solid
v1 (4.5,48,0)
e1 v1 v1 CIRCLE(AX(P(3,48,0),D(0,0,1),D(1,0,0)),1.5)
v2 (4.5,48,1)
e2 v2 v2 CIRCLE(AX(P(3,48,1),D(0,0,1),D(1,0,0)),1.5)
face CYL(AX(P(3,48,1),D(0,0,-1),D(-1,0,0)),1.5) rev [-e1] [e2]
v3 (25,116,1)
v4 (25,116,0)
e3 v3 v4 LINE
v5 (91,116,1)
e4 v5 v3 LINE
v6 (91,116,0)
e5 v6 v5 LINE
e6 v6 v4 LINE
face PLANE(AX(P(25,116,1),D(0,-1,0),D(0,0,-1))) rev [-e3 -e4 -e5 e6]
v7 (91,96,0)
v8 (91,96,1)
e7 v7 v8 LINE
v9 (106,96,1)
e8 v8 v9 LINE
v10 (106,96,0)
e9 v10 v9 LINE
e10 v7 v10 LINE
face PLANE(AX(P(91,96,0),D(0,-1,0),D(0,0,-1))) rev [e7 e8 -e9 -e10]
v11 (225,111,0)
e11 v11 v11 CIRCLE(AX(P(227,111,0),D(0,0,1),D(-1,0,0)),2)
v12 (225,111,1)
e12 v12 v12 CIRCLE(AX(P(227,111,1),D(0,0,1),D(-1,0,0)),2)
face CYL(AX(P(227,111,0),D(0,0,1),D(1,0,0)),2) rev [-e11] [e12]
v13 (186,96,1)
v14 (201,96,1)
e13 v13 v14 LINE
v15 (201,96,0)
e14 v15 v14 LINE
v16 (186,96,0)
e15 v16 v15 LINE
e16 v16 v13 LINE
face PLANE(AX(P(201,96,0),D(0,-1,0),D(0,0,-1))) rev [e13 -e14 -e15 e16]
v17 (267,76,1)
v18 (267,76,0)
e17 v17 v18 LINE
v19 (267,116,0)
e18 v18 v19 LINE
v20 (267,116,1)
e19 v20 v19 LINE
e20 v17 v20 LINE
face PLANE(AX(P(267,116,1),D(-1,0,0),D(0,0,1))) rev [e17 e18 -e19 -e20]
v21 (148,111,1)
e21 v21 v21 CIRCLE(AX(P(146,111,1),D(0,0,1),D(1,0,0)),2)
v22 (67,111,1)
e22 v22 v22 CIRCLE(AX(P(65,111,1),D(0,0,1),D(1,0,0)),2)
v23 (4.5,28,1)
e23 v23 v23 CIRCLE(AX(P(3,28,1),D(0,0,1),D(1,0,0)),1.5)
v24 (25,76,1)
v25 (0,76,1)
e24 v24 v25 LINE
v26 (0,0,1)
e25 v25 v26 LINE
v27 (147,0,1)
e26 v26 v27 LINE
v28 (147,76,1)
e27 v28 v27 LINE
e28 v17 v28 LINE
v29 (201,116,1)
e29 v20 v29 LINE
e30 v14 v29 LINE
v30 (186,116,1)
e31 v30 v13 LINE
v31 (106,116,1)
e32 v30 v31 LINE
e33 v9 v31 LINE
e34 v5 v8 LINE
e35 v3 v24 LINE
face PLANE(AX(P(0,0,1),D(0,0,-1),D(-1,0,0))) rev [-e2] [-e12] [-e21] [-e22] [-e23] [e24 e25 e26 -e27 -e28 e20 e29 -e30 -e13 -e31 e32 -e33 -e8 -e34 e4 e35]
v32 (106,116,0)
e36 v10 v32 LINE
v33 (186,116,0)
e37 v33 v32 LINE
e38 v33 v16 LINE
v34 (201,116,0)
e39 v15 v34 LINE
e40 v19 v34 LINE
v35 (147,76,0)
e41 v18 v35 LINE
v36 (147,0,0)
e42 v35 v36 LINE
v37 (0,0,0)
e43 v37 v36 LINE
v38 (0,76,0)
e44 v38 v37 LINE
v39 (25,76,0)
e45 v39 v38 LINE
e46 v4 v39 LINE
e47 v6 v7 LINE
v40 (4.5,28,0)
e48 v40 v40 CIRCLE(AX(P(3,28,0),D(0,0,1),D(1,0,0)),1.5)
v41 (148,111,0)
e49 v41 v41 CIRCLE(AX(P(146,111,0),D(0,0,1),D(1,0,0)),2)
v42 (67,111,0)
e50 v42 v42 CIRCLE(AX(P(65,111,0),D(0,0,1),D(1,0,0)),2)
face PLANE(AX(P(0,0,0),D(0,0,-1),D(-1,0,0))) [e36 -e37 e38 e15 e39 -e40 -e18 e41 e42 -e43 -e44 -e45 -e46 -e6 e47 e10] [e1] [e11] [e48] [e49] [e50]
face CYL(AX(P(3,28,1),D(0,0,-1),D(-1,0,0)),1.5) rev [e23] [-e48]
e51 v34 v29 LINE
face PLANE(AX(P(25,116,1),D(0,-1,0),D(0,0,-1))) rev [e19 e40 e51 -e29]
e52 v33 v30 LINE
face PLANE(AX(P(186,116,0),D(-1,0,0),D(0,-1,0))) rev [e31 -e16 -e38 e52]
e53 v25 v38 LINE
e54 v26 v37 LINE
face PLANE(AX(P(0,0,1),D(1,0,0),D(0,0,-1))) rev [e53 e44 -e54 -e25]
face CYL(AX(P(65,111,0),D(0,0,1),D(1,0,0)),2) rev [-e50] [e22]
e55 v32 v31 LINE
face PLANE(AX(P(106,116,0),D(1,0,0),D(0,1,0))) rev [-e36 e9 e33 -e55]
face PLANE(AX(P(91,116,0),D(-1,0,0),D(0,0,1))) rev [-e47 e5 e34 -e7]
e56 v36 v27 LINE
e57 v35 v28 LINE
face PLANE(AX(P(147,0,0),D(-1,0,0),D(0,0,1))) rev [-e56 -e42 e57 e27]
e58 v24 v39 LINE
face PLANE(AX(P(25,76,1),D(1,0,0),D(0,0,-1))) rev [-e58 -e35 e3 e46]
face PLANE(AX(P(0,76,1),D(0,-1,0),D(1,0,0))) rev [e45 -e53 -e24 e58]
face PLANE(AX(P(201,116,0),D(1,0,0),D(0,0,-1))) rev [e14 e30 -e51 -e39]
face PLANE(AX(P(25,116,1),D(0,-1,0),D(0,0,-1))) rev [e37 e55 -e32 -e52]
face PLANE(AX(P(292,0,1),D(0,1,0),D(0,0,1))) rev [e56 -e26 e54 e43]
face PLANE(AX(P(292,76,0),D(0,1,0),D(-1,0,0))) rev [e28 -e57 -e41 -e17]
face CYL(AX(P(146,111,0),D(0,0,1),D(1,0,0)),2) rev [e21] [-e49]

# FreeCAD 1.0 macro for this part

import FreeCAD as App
import Part
import Sketcher

V = App.Vector
Q = App.Units.Quantity


def add_polygon(sketch, points):
    """Adds a closed chain of lines whose ends are joined by coincident constraints."""
    first, n = sketch.GeometryCount, len(points)
    for a, b in zip(points, points[1:] + points[:1]):
        sketch.addGeometry(Part.LineSegment(App.Vector(*a, 0), App.Vector(*b, 0)), False)
    for i in range(n):
        sketch.addConstraint(Sketcher.Constraint("Coincident", first + i, 2, first + (i + 1) % n, 1))

doc = App.newDocument("Part")
body = doc.addObject("PartDesign::Body", "Body")

sketch1 = body.newObject("Sketcher::SketchObject", "Sketch")
sketch1.AttachmentSupport = (doc.getObject("XY_Plane"), [""])
sketch1.MapMode = "FlatFace"
add_polygon(sketch1, [(0, 76), (0, 0), (292, 0), (292, 76), (267, 76), (267, 116), (25, 116), (25, 76)])
sketch1.addGeometry(Part.Circle(V(289, 28, 0), V(0, 0, 1), 1.5), False)
sketch1.addGeometry(Part.Circle(V(3, 28, 0), V(0, 0, 1), 1.5), False)
sketch1.addGeometry(Part.Circle(V(289, 48, 0), V(0, 0, 1), 1.5), False)
sketch1.addGeometry(Part.Circle(V(3, 48, 0), V(0, 0, 1), 1.5), False)
sketch1.addConstraint([
    Sketcher.Constraint("Vertical", 0),
    Sketcher.Constraint("Horizontal", 1),
    Sketcher.Constraint("Vertical", 2),
    Sketcher.Constraint("Horizontal", 3),
    Sketcher.Constraint("Vertical", 4),
    Sketcher.Constraint("Horizontal", 5),
    Sketcher.Constraint("Vertical", 6),
    Sketcher.Constraint("Horizontal", 7),
    Sketcher.Constraint("Coincident", 0, 2, -1, 1),
    Sketcher.Constraint("Equal", 8, 9),
    Sketcher.Constraint("Equal", 9, 10),
    Sketcher.Constraint("Equal", 10, 11),
    Sketcher.Constraint("Horizontal", 8, 3, 9, 3),
    Sketcher.Constraint("Horizontal", 10, 3, 11, 3),
    Sketcher.Constraint("Horizontal", 3, 2, 6, 2),
    Sketcher.Constraint("Vertical", 8, 3, 10, 3),
    Sketcher.Constraint("Vertical", 9, 3, 11, 3),
    Sketcher.Constraint("Equal", 3, 7),
    Sketcher.Constraint("Diameter", 8, Q("3 mm")),
    Sketcher.Constraint("DistanceX", 1, 1, 1, 2, Q("292 mm")),
    Sketcher.Constraint("DistanceX", 3, 2, 3, 1, Q("25 mm")),
    Sketcher.Constraint("DistanceY", 0, 2, 0, 1, Q("76 mm")),
    Sketcher.Constraint("DistanceY", 4, 1, 4, 2, Q("40 mm")),
    Sketcher.Constraint("DistanceX", -1, 1, 8, 3, Q("289 mm")),
    Sketcher.Constraint("DistanceY", -1, 1, 8, 3, Q("28 mm")),
    Sketcher.Constraint("DistanceX", -1, 1, 9, 3, Q("3 mm")),
    Sketcher.Constraint("DistanceY", -1, 1, 10, 3, Q("48 mm")),
])
pad1 = body.newObject("PartDesign::Pad", "Pad")
pad1.Profile = sketch1
pad1.Length = 1

sketch2 = body.newObject("Sketcher::SketchObject", "Sketch001")
sketch2.AttachmentSupport = (doc.getObject("XY_Plane"), [""])
sketch2.MapMode = "FlatFace"
sketch2.AttachmentOffset = App.Placement(V(0, 0, 1), App.Rotation())
sketch2.addGeometry(Part.Circle(V(65, 111, 0), V(0, 0, 1), 2), False)
sketch2.addGeometry(Part.Circle(V(227, 111, 0), V(0, 0, 1), 2), False)
sketch2.addGeometry(Part.Circle(V(146, 111, 0), V(0, 0, 1), 2), False)
add_polygon(sketch2, [(186, 116), (186, 96), (201, 96), (201, 116)])
add_polygon(sketch2, [(91, 116), (91, 96), (106, 96), (106, 116)])
sketch2.addConstraint([
    Sketcher.Constraint("Vertical", 3),
    Sketcher.Constraint("Horizontal", 4),
    Sketcher.Constraint("Vertical", 5),
    Sketcher.Constraint("Horizontal", 6),
    Sketcher.Constraint("Vertical", 7),
    Sketcher.Constraint("Horizontal", 8),
    Sketcher.Constraint("Vertical", 9),
    Sketcher.Constraint("Horizontal", 10),
    Sketcher.Constraint("Equal", 0, 1),
    Sketcher.Constraint("Equal", 1, 2),
    Sketcher.Constraint("Horizontal", 0, 3, 1, 3),
    Sketcher.Constraint("Horizontal", 1, 3, 2, 3),
    Sketcher.Constraint("Horizontal", 4, 2, 7, 2),
    Sketcher.Constraint("Horizontal", 6, 2, 9, 2),
    Sketcher.Constraint("Equal", 6, 8),
    Sketcher.Constraint("Diameter", 0, Q("4 mm")),
    Sketcher.Constraint("DistanceX", 4, 1, 4, 2, Q("15 mm")),
    Sketcher.Constraint("DistanceY", 3, 2, 3, 1, Q("20 mm")),
    Sketcher.Constraint("DistanceX", -1, 1, 0, 3, Q("65 mm")),
    Sketcher.Constraint("DistanceY", -1, 1, 0, 3, Q("111 mm")),
    Sketcher.Constraint("DistanceX", -1, 1, 1, 3, Q("227 mm")),
    Sketcher.Constraint("DistanceX", -1, 1, 2, 3, Q("146 mm")),
    Sketcher.Constraint("DistanceX", -1, 1, 3, 2, Q("186 mm")),
    Sketcher.Constraint("DistanceY", -1, 1, 3, 2, Q("96 mm")),
    Sketcher.Constraint("DistanceX", -1, 1, 7, 2, Q("91 mm")),
])
pocket1 = body.newObject("PartDesign::Pocket", "Pocket")
pocket1.Profile = sketch2
pocket1.Type = "ThroughAll"

sketch3 = body.newObject("Sketcher::SketchObject", "Sketch002")
sketch3.AttachmentSupport = (doc.getObject("XY_Plane"), [""])
sketch3.MapMode = "FlatFace"
sketch3.AttachmentOffset = App.Placement(V(0, 0, 1), App.Rotation())
add_polygon(sketch3, [(147, 76), (147, 0), (292, 0), (292, 76)])
sketch3.addConstraint([
    Sketcher.Constraint("Vertical", 0),
    Sketcher.Constraint("Horizontal", 1),
    Sketcher.Constraint("Vertical", 2),
    Sketcher.Constraint("Horizontal", 3),
    Sketcher.Constraint("PointOnObject", 0, 2, -1),
    Sketcher.Constraint("DistanceX", 1, 1, 1, 2, Q("145 mm")),
    Sketcher.Constraint("DistanceY", 0, 2, 0, 1, Q("76 mm")),
    Sketcher.Constraint("DistanceX", -1, 1, 0, 2, Q("147 mm")),
])
pocket2 = body.newObject("PartDesign::Pocket", "Pocket001")
pocket2.Profile = sketch3
pocket2.Type = "ThroughAll"

doc.recompute()
